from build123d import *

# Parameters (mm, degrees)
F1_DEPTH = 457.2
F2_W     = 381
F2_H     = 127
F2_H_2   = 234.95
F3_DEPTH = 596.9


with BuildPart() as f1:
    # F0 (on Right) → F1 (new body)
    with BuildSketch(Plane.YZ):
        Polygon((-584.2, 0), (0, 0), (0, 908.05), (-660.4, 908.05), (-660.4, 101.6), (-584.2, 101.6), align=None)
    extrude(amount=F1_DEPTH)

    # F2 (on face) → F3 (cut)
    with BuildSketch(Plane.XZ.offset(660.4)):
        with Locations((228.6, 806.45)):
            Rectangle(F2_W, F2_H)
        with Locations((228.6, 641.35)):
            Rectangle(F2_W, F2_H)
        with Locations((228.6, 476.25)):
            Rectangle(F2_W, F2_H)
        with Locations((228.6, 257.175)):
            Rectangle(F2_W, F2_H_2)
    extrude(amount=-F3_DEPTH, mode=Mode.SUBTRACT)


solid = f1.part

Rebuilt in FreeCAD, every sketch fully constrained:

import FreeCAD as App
import Part
import Sketcher

V = App.Vector
Q = App.Units.Quantity

doc = App.newDocument("Part")
body = doc.addObject("PartDesign::Body", "Body")

# Sketch on YZ plane
sketch1 = body.newObject("Sketcher::SketchObject", "Sketch")
sketch1.AttachmentSupport = (doc.getObject("YZ_Plane"), [""])
sketch1.MapMode = "FlatFace"
sketch1.addGeometry([
    Part.LineSegment(V(-584, 0, 0), V(0, 0, 0)),  # 0
    Part.LineSegment(V(0, 0, 0), V(0, 908, 0)),  # 1
    Part.LineSegment(V(0, 908, 0), V(-660, 908, 0)),  # 2
    Part.LineSegment(V(-660, 908, 0), V(-660, 102, 0)),  # 3
    Part.LineSegment(V(-660, 102, 0), V(-584, 102, 0)),  # 4
    Part.LineSegment(V(-584, 102, 0), V(-584, 0, 0)),  # 5
], False)
sketch1.addConstraint([
    Sketcher.Constraint("Coincident", 0, 2, 1, 1),
    Sketcher.Constraint("Coincident", 1, 2, 2, 1),
    Sketcher.Constraint("Coincident", 2, 2, 3, 1),
    Sketcher.Constraint("Coincident", 3, 2, 4, 1),
    Sketcher.Constraint("Coincident", 4, 2, 5, 1),
    Sketcher.Constraint("Coincident", 5, 2, 0, 1),
    Sketcher.Constraint("Horizontal", 0),
    Sketcher.Constraint("Vertical", 1),
    Sketcher.Constraint("Horizontal", 2),
    Sketcher.Constraint("Vertical", 3),
    Sketcher.Constraint("Horizontal", 4),
    Sketcher.Constraint("Vertical", 5),
    Sketcher.Constraint("Coincident", 0, 2, -1, 1),
    Sketcher.Constraint("DistanceX", 0, 1, 0, 2, Q("23 in")),
    Sketcher.Constraint("DistanceX", 2, 2, 2, 1, Q("26 in")),
    Sketcher.Constraint("DistanceY", 5, 2, 5, 1, Q("4 in")),
    Sketcher.Constraint("DistanceY", 1, 1, 1, 2, Q("35.75 in")),
])
pad1 = body.newObject("PartDesign::Pad", "Pad")
pad1.Profile = sketch1
pad1.Length = Q("18 in")

# Sketch on XZ plane
sketch2 = body.newObject("Sketcher::SketchObject", "Sketch001")
sketch2.AttachmentSupport = (doc.getObject("XZ_Plane"), [""])
sketch2.MapMode = "FlatFace"
sketch2.AttachmentOffset = App.Placement(V(0, 0, 26 * 25.4), App.Rotation())
sketch2.addGeometry([
    Part.LineSegment(V(38, 870, 0), V(38, 743, 0)),  # 0
    Part.LineSegment(V(38, 743, 0), V(419, 743, 0)),  # 1
    Part.LineSegment(V(419, 743, 0), V(419, 870, 0)),  # 2
    Part.LineSegment(V(419, 870, 0), V(38, 870, 0)),  # 3
    Part.LineSegment(V(38, 705, 0), V(38, 578, 0)),  # 4
    Part.LineSegment(V(38, 578, 0), V(419, 578, 0)),  # 5
    Part.LineSegment(V(419, 578, 0), V(419, 705, 0)),  # 6
    Part.LineSegment(V(419, 705, 0), V(38, 705, 0)),  # 7
    Part.LineSegment(V(38, 540, 0), V(38, 413, 0)),  # 8
    Part.LineSegment(V(38, 413, 0), V(419, 413, 0)),  # 9
    Part.LineSegment(V(419, 413, 0), V(419, 540, 0)),  # 10
    Part.LineSegment(V(419, 540, 0), V(38, 540, 0)),  # 11
    Part.LineSegment(V(38, 375, 0), V(38, 140, 0)),  # 12
    Part.LineSegment(V(38, 140, 0), V(419, 140, 0)),  # 13
    Part.LineSegment(V(419, 140, 0), V(419, 375, 0)),  # 14
    Part.LineSegment(V(419, 375, 0), V(38, 375, 0)),  # 15
], False)
sketch2.addConstraint([
    Sketcher.Constraint("Coincident", 0, 2, 1, 1),
    Sketcher.Constraint("Coincident", 1, 2, 2, 1),
    Sketcher.Constraint("Coincident", 2, 2, 3, 1),
    Sketcher.Constraint("Coincident", 3, 2, 0, 1),
    Sketcher.Constraint("Coincident", 4, 2, 5, 1),
    Sketcher.Constraint("Coincident", 5, 2, 6, 1),
    Sketcher.Constraint("Coincident", 6, 2, 7, 1),
    Sketcher.Constraint("Coincident", 7, 2, 4, 1),
    Sketcher.Constraint("Coincident", 8, 2, 9, 1),
    Sketcher.Constraint("Coincident", 9, 2, 10, 1),
    Sketcher.Constraint("Coincident", 10, 2, 11, 1),
    Sketcher.Constraint("Coincident", 11, 2, 8, 1),
    Sketcher.Constraint("Coincident", 12, 2, 13, 1),
    Sketcher.Constraint("Coincident", 13, 2, 14, 1),
    Sketcher.Constraint("Coincident", 14, 2, 15, 1),
    Sketcher.Constraint("Coincident", 15, 2, 12, 1),
    Sketcher.Constraint("Vertical", 0),
    Sketcher.Constraint("Horizontal", 1),
    Sketcher.Constraint("Vertical", 2),
    Sketcher.Constraint("Horizontal", 3),
    Sketcher.Constraint("Vertical", 4),
    Sketcher.Constraint("Horizontal", 5),
    Sketcher.Constraint("Vertical", 6),
    Sketcher.Constraint("Horizontal", 7),
    Sketcher.Constraint("Vertical", 8),
    Sketcher.Constraint("Horizontal", 9),
    Sketcher.Constraint("Vertical", 10),
    Sketcher.Constraint("Horizontal", 11),
    Sketcher.Constraint("Vertical", 12),
    Sketcher.Constraint("Horizontal", 13),
    Sketcher.Constraint("Vertical", 14),
    Sketcher.Constraint("Horizontal", 15),
    Sketcher.Constraint("Vertical", 3, 2, 4, 2),
    Sketcher.Constraint("Vertical", 2, 2, 5, 2),
    Sketcher.Constraint("Vertical", 7, 2, 8, 2),
    Sketcher.Constraint("Vertical", 6, 2, 9, 2),
    Sketcher.Constraint("Vertical", 11, 2, 12, 2),
    Sketcher.Constraint("Vertical", 10, 2, 13, 2),
    Sketcher.Constraint("Equal", 2, 4),
    Sketcher.Constraint("Equal", 6, 8),
    Sketcher.Constraint("DistanceX", 1, 1, 1, 2, Q("15 in")),
    Sketcher.Constraint("DistanceY", 0, 2, 0, 1, Q("5 in")),
    Sketcher.Constraint("DistanceY", 8, 2, 0, 2, Q("13 in")),
    Sketcher.Constraint("DistanceY", 14, 2, 5, 2, Q("8 in")),
    Sketcher.Constraint("DistanceY", 12, 2, 12, 1, Q("9.25 in")),
    Sketcher.Constraint("DistanceX", -1, 1, 0, 2, Q("1.5 in")),
    Sketcher.Constraint("DistanceY", -1, 1, 12, 2, Q("5.5 in")),
    Sketcher.Constraint("DistanceY", 4, 2, 0, 2, Q("6.5 in")),
])
pocket1 = body.newObject("PartDesign::Pocket", "Pocket")
pocket1.Profile = sketch2
pocket1.Length = Q("23.5 in")

doc.recompute()
